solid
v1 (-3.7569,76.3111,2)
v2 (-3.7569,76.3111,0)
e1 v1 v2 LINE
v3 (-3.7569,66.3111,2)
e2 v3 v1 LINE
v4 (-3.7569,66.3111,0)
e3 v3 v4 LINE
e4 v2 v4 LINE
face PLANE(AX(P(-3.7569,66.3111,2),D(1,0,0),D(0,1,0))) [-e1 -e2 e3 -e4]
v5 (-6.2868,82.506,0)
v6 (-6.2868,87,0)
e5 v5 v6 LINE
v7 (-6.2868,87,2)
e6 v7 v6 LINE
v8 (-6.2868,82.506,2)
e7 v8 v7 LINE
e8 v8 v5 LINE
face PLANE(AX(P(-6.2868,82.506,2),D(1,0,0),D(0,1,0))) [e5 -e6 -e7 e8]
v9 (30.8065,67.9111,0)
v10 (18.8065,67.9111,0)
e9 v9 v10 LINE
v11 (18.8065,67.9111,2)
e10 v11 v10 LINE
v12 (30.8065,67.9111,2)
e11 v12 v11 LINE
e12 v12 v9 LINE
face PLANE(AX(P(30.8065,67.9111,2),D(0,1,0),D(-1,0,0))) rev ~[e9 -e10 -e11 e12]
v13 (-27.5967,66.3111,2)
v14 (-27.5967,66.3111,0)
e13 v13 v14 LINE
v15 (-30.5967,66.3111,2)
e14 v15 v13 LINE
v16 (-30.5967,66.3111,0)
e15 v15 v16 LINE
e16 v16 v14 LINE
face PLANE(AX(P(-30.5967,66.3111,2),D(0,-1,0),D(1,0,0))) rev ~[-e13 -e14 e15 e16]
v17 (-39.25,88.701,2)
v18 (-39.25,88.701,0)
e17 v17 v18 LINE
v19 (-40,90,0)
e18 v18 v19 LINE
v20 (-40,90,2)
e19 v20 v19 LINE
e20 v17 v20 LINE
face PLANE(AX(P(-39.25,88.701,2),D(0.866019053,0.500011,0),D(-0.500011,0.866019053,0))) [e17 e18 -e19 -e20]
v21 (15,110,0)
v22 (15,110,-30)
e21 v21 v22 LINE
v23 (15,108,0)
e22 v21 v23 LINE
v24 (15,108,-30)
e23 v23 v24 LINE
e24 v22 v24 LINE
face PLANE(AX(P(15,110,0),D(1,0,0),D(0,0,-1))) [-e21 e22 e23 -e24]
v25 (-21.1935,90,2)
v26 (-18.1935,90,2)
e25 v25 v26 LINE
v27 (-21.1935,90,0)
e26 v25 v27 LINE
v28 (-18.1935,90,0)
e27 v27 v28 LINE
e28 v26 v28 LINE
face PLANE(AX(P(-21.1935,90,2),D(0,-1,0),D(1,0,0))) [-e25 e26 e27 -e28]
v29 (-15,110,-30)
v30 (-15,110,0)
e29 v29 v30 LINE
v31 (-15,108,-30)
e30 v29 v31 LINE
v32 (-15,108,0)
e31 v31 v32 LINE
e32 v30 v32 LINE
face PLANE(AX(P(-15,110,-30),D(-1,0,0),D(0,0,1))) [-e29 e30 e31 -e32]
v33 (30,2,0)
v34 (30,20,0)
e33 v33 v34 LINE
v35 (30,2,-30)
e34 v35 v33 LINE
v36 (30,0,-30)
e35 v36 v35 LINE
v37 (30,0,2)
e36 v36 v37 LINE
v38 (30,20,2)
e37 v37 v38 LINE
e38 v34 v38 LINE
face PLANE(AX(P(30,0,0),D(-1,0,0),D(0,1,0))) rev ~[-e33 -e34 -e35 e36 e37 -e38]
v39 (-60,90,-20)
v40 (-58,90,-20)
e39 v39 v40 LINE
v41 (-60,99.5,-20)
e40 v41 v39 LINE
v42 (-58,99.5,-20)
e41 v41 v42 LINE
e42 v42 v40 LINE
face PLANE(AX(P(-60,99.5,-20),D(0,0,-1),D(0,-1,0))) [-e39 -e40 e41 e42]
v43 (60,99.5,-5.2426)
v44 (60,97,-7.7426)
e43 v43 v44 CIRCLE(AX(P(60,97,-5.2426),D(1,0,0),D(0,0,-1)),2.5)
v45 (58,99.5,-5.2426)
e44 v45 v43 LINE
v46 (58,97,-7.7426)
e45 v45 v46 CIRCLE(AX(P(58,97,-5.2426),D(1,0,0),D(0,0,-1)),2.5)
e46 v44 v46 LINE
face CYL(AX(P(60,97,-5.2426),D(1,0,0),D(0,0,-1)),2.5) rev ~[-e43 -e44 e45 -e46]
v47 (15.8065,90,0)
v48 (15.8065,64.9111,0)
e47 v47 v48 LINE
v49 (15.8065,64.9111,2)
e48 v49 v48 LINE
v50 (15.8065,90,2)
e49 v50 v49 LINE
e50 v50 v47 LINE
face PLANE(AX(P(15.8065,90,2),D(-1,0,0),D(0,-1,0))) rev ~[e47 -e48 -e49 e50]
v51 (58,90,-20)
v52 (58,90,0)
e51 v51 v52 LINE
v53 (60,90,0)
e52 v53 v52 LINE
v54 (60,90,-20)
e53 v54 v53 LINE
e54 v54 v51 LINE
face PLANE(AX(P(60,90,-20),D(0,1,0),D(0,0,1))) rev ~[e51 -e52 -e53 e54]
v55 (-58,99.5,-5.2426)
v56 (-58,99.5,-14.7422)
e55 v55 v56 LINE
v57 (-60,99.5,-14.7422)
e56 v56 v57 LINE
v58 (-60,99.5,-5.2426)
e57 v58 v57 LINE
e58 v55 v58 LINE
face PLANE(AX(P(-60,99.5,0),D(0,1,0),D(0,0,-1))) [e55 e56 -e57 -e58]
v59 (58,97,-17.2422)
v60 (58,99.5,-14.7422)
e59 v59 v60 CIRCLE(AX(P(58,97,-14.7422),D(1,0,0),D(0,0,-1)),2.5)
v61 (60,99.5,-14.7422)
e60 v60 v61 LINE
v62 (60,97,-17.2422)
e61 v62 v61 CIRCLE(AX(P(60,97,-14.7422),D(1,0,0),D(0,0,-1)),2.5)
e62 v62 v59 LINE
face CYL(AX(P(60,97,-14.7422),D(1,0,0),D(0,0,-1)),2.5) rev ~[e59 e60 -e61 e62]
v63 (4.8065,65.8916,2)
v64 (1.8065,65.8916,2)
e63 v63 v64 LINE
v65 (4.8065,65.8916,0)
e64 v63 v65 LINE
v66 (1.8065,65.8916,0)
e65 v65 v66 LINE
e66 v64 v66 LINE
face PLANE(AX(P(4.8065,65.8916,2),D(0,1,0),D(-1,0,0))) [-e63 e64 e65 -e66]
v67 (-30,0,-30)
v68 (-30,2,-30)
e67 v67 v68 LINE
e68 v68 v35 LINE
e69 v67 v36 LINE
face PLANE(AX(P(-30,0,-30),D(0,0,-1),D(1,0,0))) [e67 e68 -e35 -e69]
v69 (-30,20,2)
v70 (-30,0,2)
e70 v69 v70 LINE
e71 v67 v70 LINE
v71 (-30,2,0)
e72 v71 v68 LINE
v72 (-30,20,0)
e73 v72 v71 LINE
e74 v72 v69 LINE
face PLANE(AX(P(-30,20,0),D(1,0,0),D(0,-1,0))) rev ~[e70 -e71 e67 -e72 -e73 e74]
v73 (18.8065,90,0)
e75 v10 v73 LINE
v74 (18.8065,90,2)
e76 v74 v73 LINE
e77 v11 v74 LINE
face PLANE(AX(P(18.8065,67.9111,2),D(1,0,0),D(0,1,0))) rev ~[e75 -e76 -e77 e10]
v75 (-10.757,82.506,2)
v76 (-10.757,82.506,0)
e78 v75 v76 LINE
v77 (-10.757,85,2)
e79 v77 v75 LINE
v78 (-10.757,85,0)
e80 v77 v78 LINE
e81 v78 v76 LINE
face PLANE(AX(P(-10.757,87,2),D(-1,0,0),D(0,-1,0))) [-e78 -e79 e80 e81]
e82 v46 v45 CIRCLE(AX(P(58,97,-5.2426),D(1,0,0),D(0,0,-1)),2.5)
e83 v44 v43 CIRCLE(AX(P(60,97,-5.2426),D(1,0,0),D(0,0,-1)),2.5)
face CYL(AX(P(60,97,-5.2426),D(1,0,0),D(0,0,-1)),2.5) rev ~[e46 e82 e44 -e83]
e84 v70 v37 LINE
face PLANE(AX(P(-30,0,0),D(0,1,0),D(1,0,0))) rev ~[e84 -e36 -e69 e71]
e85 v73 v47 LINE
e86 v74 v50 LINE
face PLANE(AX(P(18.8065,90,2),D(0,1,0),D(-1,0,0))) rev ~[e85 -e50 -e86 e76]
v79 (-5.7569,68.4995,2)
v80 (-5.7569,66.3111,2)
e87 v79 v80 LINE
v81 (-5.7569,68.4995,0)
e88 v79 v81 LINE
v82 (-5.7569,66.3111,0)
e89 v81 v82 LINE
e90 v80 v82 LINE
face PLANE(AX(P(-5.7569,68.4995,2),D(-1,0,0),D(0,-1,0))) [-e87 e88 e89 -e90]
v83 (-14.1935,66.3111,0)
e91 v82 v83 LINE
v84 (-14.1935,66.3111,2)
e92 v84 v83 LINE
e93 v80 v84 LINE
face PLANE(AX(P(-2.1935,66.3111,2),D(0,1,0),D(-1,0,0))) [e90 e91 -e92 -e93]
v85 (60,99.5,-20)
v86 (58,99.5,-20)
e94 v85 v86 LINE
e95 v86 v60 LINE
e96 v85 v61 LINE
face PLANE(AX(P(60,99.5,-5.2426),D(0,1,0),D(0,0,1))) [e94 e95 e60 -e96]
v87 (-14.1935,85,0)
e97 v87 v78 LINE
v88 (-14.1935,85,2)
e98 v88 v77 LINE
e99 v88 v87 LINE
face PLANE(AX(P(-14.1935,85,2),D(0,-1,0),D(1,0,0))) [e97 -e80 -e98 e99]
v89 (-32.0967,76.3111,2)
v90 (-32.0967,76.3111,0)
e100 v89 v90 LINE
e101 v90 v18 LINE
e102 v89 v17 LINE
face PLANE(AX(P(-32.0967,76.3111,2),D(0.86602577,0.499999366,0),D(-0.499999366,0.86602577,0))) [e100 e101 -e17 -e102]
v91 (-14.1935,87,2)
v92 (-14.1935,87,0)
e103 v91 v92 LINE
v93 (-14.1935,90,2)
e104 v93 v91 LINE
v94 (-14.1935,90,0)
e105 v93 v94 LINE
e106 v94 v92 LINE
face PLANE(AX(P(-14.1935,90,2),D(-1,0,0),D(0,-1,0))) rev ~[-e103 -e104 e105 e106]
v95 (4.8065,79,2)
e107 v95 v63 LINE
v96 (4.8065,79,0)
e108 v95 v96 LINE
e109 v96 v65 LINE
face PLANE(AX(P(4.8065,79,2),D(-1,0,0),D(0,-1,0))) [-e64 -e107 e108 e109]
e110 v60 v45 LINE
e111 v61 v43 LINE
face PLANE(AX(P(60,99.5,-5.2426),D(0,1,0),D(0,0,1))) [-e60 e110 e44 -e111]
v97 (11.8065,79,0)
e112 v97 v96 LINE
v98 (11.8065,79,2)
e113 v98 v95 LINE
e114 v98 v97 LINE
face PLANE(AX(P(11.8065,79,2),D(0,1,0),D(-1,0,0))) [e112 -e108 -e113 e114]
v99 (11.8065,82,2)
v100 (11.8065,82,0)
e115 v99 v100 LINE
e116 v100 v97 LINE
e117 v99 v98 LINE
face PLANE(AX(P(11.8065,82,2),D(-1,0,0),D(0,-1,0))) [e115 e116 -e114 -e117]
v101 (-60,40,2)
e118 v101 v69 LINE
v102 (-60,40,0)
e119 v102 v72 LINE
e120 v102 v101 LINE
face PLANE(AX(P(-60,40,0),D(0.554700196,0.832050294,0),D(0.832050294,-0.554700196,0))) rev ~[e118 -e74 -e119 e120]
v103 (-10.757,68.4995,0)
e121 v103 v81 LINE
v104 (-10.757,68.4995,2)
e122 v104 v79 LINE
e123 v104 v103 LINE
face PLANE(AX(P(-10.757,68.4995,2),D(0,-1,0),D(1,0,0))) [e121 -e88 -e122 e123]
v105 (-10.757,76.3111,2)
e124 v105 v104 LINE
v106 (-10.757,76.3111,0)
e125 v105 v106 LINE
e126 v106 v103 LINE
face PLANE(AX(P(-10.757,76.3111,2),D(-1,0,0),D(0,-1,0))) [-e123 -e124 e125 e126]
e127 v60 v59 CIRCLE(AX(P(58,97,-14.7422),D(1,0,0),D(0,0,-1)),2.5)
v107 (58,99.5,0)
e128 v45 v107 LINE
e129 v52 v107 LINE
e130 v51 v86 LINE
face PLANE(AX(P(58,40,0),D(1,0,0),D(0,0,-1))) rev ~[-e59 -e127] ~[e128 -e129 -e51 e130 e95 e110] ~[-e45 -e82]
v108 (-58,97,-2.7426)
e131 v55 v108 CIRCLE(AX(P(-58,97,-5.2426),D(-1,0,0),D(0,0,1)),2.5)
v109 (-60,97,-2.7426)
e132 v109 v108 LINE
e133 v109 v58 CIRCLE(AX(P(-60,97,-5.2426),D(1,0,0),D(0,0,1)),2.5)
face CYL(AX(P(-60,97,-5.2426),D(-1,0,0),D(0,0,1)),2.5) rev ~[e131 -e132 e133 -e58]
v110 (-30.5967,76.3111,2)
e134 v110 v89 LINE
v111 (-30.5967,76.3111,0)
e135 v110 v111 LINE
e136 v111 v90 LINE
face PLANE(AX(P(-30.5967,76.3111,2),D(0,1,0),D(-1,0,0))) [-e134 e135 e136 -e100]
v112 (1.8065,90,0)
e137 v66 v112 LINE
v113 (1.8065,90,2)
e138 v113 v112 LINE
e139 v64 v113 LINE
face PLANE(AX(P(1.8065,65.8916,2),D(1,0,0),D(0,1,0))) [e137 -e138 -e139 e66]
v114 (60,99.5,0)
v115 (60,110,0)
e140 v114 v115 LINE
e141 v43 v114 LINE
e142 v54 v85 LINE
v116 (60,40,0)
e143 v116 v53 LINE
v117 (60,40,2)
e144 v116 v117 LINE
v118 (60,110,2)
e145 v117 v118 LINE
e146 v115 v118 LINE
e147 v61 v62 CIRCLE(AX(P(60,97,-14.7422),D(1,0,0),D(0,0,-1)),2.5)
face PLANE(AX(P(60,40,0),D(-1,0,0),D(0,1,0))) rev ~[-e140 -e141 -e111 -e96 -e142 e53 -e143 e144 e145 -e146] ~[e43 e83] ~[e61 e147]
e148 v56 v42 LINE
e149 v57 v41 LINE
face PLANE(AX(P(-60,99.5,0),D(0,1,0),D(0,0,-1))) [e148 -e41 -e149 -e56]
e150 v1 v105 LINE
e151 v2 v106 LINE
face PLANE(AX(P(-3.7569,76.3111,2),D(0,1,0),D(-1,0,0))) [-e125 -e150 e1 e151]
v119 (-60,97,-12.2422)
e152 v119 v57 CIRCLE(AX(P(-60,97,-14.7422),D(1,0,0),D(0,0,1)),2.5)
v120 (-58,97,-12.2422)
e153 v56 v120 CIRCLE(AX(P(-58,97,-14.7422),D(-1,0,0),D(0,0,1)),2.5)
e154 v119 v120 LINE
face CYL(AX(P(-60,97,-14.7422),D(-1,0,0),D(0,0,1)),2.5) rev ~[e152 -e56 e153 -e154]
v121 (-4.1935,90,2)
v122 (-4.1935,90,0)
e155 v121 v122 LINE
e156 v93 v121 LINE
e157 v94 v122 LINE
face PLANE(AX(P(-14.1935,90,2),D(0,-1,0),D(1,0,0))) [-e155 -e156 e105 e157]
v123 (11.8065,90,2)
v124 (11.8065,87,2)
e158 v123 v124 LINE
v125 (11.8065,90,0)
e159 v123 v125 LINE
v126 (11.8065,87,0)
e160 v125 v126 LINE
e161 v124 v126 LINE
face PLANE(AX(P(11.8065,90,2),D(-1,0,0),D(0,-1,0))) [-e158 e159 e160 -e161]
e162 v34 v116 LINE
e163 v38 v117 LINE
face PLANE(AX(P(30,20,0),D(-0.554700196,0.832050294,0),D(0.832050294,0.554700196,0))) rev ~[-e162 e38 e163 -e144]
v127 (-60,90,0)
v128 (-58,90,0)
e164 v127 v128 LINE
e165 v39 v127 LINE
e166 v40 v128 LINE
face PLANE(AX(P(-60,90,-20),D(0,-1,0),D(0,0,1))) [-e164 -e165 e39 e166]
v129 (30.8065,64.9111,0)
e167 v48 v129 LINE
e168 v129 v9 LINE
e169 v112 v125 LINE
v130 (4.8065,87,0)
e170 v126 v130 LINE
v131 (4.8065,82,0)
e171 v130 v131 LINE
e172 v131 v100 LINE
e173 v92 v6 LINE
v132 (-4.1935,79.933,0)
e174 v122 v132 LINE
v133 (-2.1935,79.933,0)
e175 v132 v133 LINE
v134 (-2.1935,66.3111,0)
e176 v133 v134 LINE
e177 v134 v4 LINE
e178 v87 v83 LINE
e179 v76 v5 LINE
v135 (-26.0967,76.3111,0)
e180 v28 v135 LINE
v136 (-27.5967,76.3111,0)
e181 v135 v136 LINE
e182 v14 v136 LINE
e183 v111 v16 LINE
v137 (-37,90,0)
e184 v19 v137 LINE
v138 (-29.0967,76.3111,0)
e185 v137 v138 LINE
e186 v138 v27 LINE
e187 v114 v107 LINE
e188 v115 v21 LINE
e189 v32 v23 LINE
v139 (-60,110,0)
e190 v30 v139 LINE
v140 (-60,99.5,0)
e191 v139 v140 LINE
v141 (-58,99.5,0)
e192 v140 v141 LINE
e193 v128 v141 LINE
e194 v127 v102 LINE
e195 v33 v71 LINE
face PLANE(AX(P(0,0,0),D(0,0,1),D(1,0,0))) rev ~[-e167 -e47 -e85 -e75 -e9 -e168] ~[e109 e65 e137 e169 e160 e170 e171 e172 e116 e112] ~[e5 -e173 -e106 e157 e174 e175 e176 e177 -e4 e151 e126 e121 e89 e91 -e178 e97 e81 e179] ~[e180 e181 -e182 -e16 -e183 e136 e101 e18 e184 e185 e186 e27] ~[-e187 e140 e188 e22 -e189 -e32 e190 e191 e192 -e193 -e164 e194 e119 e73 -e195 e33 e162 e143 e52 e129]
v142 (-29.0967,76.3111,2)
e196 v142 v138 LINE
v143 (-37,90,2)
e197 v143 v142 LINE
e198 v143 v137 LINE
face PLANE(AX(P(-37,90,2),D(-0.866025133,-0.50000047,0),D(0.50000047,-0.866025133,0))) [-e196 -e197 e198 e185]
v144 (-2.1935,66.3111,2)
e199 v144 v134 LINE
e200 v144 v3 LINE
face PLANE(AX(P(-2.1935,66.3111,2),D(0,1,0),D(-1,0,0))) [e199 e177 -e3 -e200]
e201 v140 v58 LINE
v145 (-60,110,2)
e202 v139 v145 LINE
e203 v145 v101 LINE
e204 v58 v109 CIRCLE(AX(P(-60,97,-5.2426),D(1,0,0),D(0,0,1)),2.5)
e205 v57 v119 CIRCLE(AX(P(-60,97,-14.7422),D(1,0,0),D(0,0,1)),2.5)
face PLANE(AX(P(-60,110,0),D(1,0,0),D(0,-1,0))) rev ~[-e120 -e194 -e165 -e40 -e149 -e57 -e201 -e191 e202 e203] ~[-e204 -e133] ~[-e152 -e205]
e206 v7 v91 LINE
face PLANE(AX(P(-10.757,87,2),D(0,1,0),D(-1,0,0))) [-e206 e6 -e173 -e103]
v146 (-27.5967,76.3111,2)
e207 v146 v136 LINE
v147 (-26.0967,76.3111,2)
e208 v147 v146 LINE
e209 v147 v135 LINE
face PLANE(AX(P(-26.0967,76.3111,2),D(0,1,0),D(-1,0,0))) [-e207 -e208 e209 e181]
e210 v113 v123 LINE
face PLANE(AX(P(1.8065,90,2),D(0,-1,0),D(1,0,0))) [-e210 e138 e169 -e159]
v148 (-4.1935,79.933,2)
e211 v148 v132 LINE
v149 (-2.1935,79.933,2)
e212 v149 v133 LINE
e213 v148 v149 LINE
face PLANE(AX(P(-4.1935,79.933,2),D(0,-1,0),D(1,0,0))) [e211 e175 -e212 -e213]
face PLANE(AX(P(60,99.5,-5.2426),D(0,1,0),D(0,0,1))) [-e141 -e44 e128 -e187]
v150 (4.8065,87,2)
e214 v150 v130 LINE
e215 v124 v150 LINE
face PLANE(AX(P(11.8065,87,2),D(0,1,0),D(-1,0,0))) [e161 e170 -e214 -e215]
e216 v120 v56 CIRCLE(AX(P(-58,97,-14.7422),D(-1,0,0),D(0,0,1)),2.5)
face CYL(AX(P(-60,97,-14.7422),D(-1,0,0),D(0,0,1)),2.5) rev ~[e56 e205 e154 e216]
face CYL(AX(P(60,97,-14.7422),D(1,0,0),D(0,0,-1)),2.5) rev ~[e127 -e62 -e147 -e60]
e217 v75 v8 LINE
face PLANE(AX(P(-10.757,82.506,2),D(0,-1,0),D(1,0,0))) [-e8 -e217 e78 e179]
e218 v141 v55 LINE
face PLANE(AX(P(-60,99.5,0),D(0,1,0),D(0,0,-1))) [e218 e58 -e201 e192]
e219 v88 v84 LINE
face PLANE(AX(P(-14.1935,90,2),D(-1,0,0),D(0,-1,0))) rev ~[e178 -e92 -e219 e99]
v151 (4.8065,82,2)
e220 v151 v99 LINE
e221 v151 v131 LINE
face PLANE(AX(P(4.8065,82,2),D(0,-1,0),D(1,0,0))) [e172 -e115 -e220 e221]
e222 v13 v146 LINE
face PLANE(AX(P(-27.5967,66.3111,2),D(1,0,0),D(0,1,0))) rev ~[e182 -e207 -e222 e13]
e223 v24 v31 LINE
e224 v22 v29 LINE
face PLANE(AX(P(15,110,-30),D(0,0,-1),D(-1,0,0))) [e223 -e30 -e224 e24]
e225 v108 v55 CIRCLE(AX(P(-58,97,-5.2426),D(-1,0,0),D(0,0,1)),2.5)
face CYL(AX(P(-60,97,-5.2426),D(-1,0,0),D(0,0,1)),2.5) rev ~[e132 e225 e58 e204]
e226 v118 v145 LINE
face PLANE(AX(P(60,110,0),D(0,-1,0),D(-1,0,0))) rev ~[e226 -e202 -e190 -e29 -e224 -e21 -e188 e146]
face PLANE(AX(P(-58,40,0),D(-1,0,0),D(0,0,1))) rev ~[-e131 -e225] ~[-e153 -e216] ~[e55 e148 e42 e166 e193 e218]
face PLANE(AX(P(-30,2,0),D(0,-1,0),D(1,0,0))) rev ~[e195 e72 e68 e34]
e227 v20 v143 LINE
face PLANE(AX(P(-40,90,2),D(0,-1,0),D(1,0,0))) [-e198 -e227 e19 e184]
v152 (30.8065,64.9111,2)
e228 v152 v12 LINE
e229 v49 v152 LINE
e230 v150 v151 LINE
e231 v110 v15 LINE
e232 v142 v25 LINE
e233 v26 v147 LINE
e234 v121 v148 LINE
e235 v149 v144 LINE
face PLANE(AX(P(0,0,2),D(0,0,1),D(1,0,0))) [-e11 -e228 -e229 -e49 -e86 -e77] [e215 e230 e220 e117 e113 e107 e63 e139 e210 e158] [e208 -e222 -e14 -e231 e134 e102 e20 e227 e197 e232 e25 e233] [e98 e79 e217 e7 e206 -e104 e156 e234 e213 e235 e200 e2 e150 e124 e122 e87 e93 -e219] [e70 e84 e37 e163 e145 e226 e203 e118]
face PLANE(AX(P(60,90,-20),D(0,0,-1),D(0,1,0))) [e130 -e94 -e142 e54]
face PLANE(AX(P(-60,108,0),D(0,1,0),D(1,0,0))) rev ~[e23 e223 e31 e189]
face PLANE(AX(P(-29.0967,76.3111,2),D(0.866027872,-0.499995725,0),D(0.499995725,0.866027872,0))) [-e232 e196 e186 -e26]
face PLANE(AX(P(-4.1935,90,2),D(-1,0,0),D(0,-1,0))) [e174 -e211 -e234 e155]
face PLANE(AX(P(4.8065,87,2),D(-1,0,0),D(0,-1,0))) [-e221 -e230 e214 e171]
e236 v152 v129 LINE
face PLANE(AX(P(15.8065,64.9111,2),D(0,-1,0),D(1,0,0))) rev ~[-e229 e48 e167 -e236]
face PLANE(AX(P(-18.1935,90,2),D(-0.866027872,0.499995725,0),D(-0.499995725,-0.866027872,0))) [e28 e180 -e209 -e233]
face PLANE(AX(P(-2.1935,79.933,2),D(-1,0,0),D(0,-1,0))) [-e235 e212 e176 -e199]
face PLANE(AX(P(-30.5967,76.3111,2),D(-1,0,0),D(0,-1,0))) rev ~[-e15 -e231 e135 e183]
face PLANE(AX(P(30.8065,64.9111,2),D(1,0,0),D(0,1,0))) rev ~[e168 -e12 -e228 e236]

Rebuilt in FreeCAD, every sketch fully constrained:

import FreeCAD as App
import Part
import Sketcher
Q = App.Units.Quantity

doc = App.newDocument("Part")
body = doc.addObject("PartDesign::Body", "Body")
body.AllowCompound = True

# Sketch on XY plane
sketch1 = body.newObject("Sketcher::SketchObject", "Sketch")
sketch1.AttachmentSupport = (doc.getObject("XY_Plane"), [""])
sketch1.MapMode = "FlatFace"
sketch1.addGeometry(Part.LineSegment(App.Vector(-30, 20, 0), App.Vector(-30, 0, 0)), False)
sketch1.addGeometry(Part.LineSegment(App.Vector(-30, 0, 0), App.Vector(30, 0, 0)), False)
sketch1.addGeometry(Part.LineSegment(App.Vector(30, 0, 0), App.Vector(30, 20, 0)), False)
sketch1.addGeometry(Part.LineSegment(App.Vector(30, 20, 0), App.Vector(60, 40, 0)), False)
sketch1.addGeometry(Part.LineSegment(App.Vector(60, 40, 0), App.Vector(60, 110, 0)), False)
sketch1.addGeometry(Part.LineSegment(App.Vector(60, 110, 0), App.Vector(-60, 110, 0)), False)
sketch1.addGeometry(Part.LineSegment(App.Vector(-60, 110, 0), App.Vector(-60, 40, 0)), False)
sketch1.addGeometry(Part.LineSegment(App.Vector(-60, 40, 0), App.Vector(-30, 20, 0)), False)
sketch1.addConstraint(Sketcher.Constraint("Coincident", 0, 2, 1, 1))
sketch1.addConstraint(Sketcher.Constraint("Coincident", 1, 2, 2, 1))
sketch1.addConstraint(Sketcher.Constraint("Coincident", 2, 2, 3, 1))
sketch1.addConstraint(Sketcher.Constraint("Coincident", 3, 2, 4, 1))
sketch1.addConstraint(Sketcher.Constraint("Coincident", 4, 2, 5, 1))
sketch1.addConstraint(Sketcher.Constraint("Coincident", 5, 2, 6, 1))
sketch1.addConstraint(Sketcher.Constraint("Coincident", 6, 2, 7, 1))
sketch1.addConstraint(Sketcher.Constraint("Coincident", 7, 2, 0, 1))
sketch1.addConstraint(Sketcher.Constraint("Vertical", 0))
sketch1.addConstraint(Sketcher.Constraint("Horizontal", 1))
sketch1.addConstraint(Sketcher.Constraint("Vertical", 2))
sketch1.addConstraint(Sketcher.Constraint("Vertical", 4))
sketch1.addConstraint(Sketcher.Constraint("Horizontal", 5))
sketch1.addConstraint(Sketcher.Constraint("Vertical", 6))
sketch1.addConstraint(Sketcher.Constraint("Symmetric", 0, 2, 1, 2, -1, 1))
sketch1.addConstraint(Sketcher.Constraint("Symmetric", 3, 2, 6, 2, -2))
sketch1.addConstraint(Sketcher.Constraint("Horizontal", 2, 2, 7, 2))
sketch1.addConstraint(Sketcher.Constraint("DistanceX", 1, 1, 1, 2, 60.0))
sketch1.addConstraint(Sketcher.Constraint("DistanceX", 5, 2, 5, 1, 120.0))
sketch1.addConstraint(Sketcher.Constraint("DistanceY", 0, 2, 0, 1, 20.0))
sketch1.addConstraint(Sketcher.Constraint("DistanceY", 4, 1, 4, 2, 70.0))
sketch1.addConstraint(Sketcher.Constraint("DistanceY", 2, 2, 3, 2, 20.0))
pad1 = body.newObject("PartDesign::Pad", "Pad")
pad1.Profile = sketch1
pad1.Length = 2

# Sketch on XZ plane
sketch2 = body.newObject("Sketcher::SketchObject", "Sketch001")
sketch2.AttachmentSupport = (doc.getObject("XZ_Plane"), [""])
sketch2.MapMode = "FlatFace"
sketch2.addGeometry(Part.LineSegment(App.Vector(30, -30, 0), App.Vector(30, 0, 0)), False)
sketch2.addGeometry(Part.LineSegment(App.Vector(30, 0, 0), App.Vector(-30, 0, 0)), False)
sketch2.addGeometry(Part.LineSegment(App.Vector(-30, 0, 0), App.Vector(-30, -30, 0)), False)
sketch2.addGeometry(Part.LineSegment(App.Vector(-30, -30, 0), App.Vector(30, -30, 0)), False)
sketch2.addConstraint(Sketcher.Constraint("Coincident", 0, 2, 1, 1))
sketch2.addConstraint(Sketcher.Constraint("Coincident", 1, 2, 2, 1))
sketch2.addConstraint(Sketcher.Constraint("Coincident", 2, 2, 3, 1))
sketch2.addConstraint(Sketcher.Constraint("Coincident", 3, 2, 0, 1))
sketch2.addConstraint(Sketcher.Constraint("Vertical", 0))
sketch2.addConstraint(Sketcher.Constraint("Horizontal", 1))
sketch2.addConstraint(Sketcher.Constraint("Vertical", 2))
sketch2.addConstraint(Sketcher.Constraint("Horizontal", 3))
sketch2.addConstraint(Sketcher.Constraint("Symmetric", 0, 2, 1, 2, -1, 1))
sketch2.addConstraint(Sketcher.Constraint("DistanceX", 1, 2, 1, 1, 60.0))
sketch2.addConstraint(Sketcher.Constraint("DistanceY", 0, 1, 0, 2, 30.0))
pad2 = body.newObject("PartDesign::Pad", "Pad001")
pad2.Profile = sketch2
pad2.Length = 2
pad2.Reversed = True

# Sketch on XY plane
sketch3 = body.newObject("Sketcher::SketchObject", "Sketch002")
sketch3.AttachmentSupport = (doc.getObject("XY_Plane"), [""])
sketch3.MapMode = "FlatFace"
sketch3.AttachmentOffset = App.Placement(App.Vector(0, 0, 2), App.Rotation())
sketch3.addGeometry(Part.LineSegment(App.Vector(-29.1, 76.3, 0), App.Vector(-37, 90, 0)), False)
sketch3.addGeometry(Part.LineSegment(App.Vector(-37, 90, 0), App.Vector(-40, 90, 0)), False)
sketch3.addGeometry(Part.LineSegment(App.Vector(-40, 90, 0), App.Vector(-39.2, 88.7, 0)), False)
sketch3.addGeometry(Part.LineSegment(App.Vector(-39.2, 88.7, 0), App.Vector(-32.1, 76.3, 0)), False)
sketch3.addGeometry(Part.LineSegment(App.Vector(-32.1, 76.3, 0), App.Vector(-30.6, 76.3, 0)), False)
sketch3.addGeometry(Part.LineSegment(App.Vector(-30.6, 76.3, 0), App.Vector(-30.6, 66.3, 0)), False)
sketch3.addGeometry(Part.LineSegment(App.Vector(-30.6, 66.3, 0), App.Vector(-27.6, 66.3, 0)), False)
sketch3.addGeometry(Part.LineSegment(App.Vector(-27.6, 66.3, 0), App.Vector(-27.6, 76.3, 0)), False)
sketch3.addGeometry(Part.LineSegment(App.Vector(-27.6, 76.3, 0), App.Vector(-26.1, 76.3, 0)), False)
sketch3.addGeometry(Part.LineSegment(App.Vector(-26.1, 76.3, 0), App.Vector(-18.2, 90, 0)), False)
sketch3.addGeometry(Part.LineSegment(App.Vector(-18.2, 90, 0), App.Vector(-21.2, 90, 0)), False)
sketch3.addGeometry(Part.LineSegment(App.Vector(-21.2, 90, 0), App.Vector(-29.1, 76.3, 0)), False)
sketch3.addGeometry(Part.LineSegment(App.Vector(-4.2, 90, 0), App.Vector(-14.2, 90, 0)), False)
sketch3.addGeometry(Part.LineSegment(App.Vector(-14.2, 90, 0), App.Vector(-14.2, 66.3, 0)), False)
sketch3.addGeometry(Part.LineSegment(App.Vector(-14.2, 66.3, 0), App.Vector(-2.2, 66.3, 0)), False)
sketch3.addGeometry(Part.LineSegment(App.Vector(-2.2, 66.3, 0), App.Vector(-2.2, 79.9, 0)), False)
sketch3.addGeometry(Part.LineSegment(App.Vector(-2.2, 79.9, 0), App.Vector(-4.2, 79.9, 0)), False)
sketch3.addGeometry(Part.LineSegment(App.Vector(-4.2, 79.9, 0), App.Vector(-4.2, 90, 0)), False)
sketch3.addGeometry(Part.LineSegment(App.Vector(-10.8, 68.5, 0), App.Vector(-10.8, 76.3, 0)), False)
sketch3.addGeometry(Part.LineSegment(App.Vector(-10.8, 76.3, 0), App.Vector(-3.8, 76.3, 0)), False)
sketch3.addGeometry(Part.LineSegment(App.Vector(-3.8, 76.3, 0), App.Vector(-3.8, 68.5, 0)), False)
sketch3.addGeometry(Part.LineSegment(App.Vector(-3.8, 68.5, 0), App.Vector(-10.8, 68.5, 0)), False)
sketch3.addGeometry(Part.LineSegment(App.Vector(-10.8, 82.5, 0), App.Vector(-10.8, 87, 0)), False)
sketch3.addGeometry(Part.LineSegment(App.Vector(-10.8, 87, 0), App.Vector(-6.3, 87, 0)), False)
sketch3.addGeometry(Part.LineSegment(App.Vector(-6.3, 87, 0), App.Vector(-6.3, 82.5, 0)), False)
sketch3.addGeometry(Part.LineSegment(App.Vector(-6.3, 82.5, 0), App.Vector(-10.8, 82.5, 0)), False)
sketch3.addGeometry(Part.LineSegment(App.Vector(1.8, 90, 0), App.Vector(1.8, 65.9, 0)), False)
sketch3.addGeometry(Part.LineSegment(App.Vector(1.8, 65.9, 0), App.Vector(4.8, 65.9, 0)), False)
sketch3.addGeometry(Part.LineSegment(App.Vector(4.8, 65.9, 0), App.Vector(4.8, 79, 0)), False)
sketch3.addGeometry(Part.LineSegment(App.Vector(4.8, 79, 0), App.Vector(11.8, 79, 0)), False)
sketch3.addGeometry(Part.LineSegment(App.Vector(11.8, 79, 0), App.Vector(11.8, 82, 0)), False)
sketch3.addGeometry(Part.LineSegment(App.Vector(11.8, 82, 0), App.Vector(4.8, 82, 0)), False)
sketch3.addGeometry(Part.LineSegment(App.Vector(4.8, 82, 0), App.Vector(4.8, 87, 0)), False)
sketch3.addGeometry(Part.LineSegment(App.Vector(4.8, 87, 0), App.Vector(11.8, 87, 0)), False)
sketch3.addGeometry(Part.LineSegment(App.Vector(11.8, 87, 0), App.Vector(11.8, 90, 0)), False)
sketch3.addGeometry(Part.LineSegment(App.Vector(11.8, 90, 0), App.Vector(1.8, 90, 0)), False)
sketch3.addGeometry(Part.LineSegment(App.Vector(18.8, 90, 0), App.Vector(15.8, 90, 0)), False)
sketch3.addGeometry(Part.LineSegment(App.Vector(15.8, 90, 0), App.Vector(15.8, 64.9, 0)), False)
sketch3.addGeometry(Part.LineSegment(App.Vector(15.8, 64.9, 0), App.Vector(30.8, 64.9, 0)), False)
sketch3.addGeometry(Part.LineSegment(App.Vector(30.8, 64.9, 0), App.Vector(30.8, 67.9, 0)), False)
sketch3.addGeometry(Part.LineSegment(App.Vector(30.8, 67.9, 0), App.Vector(18.8, 67.9, 0)), False)
sketch3.addGeometry(Part.LineSegment(App.Vector(18.8, 67.9, 0), App.Vector(18.8, 90, 0)), False)
sketch3.addConstraint(Sketcher.Constraint("Coincident", 0, 2, 1, 1))
sketch3.addConstraint(Sketcher.Constraint("Coincident", 1, 2, 2, 1))
sketch3.addConstraint(Sketcher.Constraint("Coincident", 2, 2, 3, 1))
sketch3.addConstraint(Sketcher.Constraint("Coincident", 3, 2, 4, 1))
sketch3.addConstraint(Sketcher.Constraint("Coincident", 4, 2, 5, 1))
sketch3.addConstraint(Sketcher.Constraint("Coincident", 5, 2, 6, 1))
sketch3.addConstraint(Sketcher.Constraint("Coincident", 6, 2, 7, 1))
sketch3.addConstraint(Sketcher.Constraint("Coincident", 7, 2, 8, 1))
sketch3.addConstraint(Sketcher.Constraint("Coincident", 8, 2, 9, 1))
sketch3.addConstraint(Sketcher.Constraint("Coincident", 9, 2, 10, 1))
sketch3.addConstraint(Sketcher.Constraint("Coincident", 10, 2, 11, 1))
sketch3.addConstraint(Sketcher.Constraint("Coincident", 11, 2, 0, 1))
sketch3.addConstraint(Sketcher.Constraint("Coincident", 12, 2, 13, 1))
sketch3.addConstraint(Sketcher.Constraint("Coincident", 13, 2, 14, 1))
sketch3.addConstraint(Sketcher.Constraint("Coincident", 14, 2, 15, 1))
sketch3.addConstraint(Sketcher.Constraint("Coincident", 15, 2, 16, 1))
sketch3.addConstraint(Sketcher.Constraint("Coincident", 16, 2, 17, 1))
sketch3.addConstraint(Sketcher.Constraint("Coincident", 17, 2, 12, 1))
sketch3.addConstraint(Sketcher.Constraint("Coincident", 18, 2, 19, 1))
sketch3.addConstraint(Sketcher.Constraint("Coincident", 19, 2, 20, 1))
sketch3.addConstraint(Sketcher.Constraint("Coincident", 20, 2, 21, 1))
sketch3.addConstraint(Sketcher.Constraint("Coincident", 21, 2, 18, 1))
sketch3.addConstraint(Sketcher.Constraint("Coincident", 22, 2, 23, 1))
sketch3.addConstraint(Sketcher.Constraint("Coincident", 23, 2, 24, 1))
sketch3.addConstraint(Sketcher.Constraint("Coincident", 24, 2, 25, 1))
sketch3.addConstraint(Sketcher.Constraint("Coincident", 25, 2, 22, 1))
sketch3.addConstraint(Sketcher.Constraint("Coincident", 26, 2, 27, 1))
sketch3.addConstraint(Sketcher.Constraint("Coincident", 27, 2, 28, 1))
sketch3.addConstraint(Sketcher.Constraint("Coincident", 28, 2, 29, 1))
sketch3.addConstraint(Sketcher.Constraint("Coincident", 29, 2, 30, 1))
sketch3.addConstraint(Sketcher.Constraint("Coincident", 30, 2, 31, 1))
sketch3.addConstraint(Sketcher.Constraint("Coincident", 31, 2, 32, 1))
sketch3.addConstraint(Sketcher.Constraint("Coincident", 32, 2, 33, 1))
sketch3.addConstraint(Sketcher.Constraint("Coincident", 33, 2, 34, 1))
sketch3.addConstraint(Sketcher.Constraint("Coincident", 34, 2, 35, 1))
sketch3.addConstraint(Sketcher.Constraint("Coincident", 35, 2, 26, 1))
sketch3.addConstraint(Sketcher.Constraint("Coincident", 36, 2, 37, 1))
sketch3.addConstraint(Sketcher.Constraint("Coincident", 37, 2, 38, 1))
sketch3.addConstraint(Sketcher.Constraint("Coincident", 38, 2, 39, 1))
sketch3.addConstraint(Sketcher.Constraint("Coincident", 39, 2, 40, 1))
sketch3.addConstraint(Sketcher.Constraint("Coincident", 40, 2, 41, 1))
sketch3.addConstraint(Sketcher.Constraint("Coincident", 41, 2, 36, 1))
sketch3.addConstraint(Sketcher.Constraint("Horizontal", 1))
sketch3.addConstraint(Sketcher.Constraint("Horizontal", 4))
sketch3.addConstraint(Sketcher.Constraint("Vertical", 5))
sketch3.addConstraint(Sketcher.Constraint("Horizontal", 6))
sketch3.addConstraint(Sketcher.Constraint("Vertical", 7))
sketch3.addConstraint(Sketcher.Constraint("Horizontal", 8))
sketch3.addConstraint(Sketcher.Constraint("Horizontal", 10))
sketch3.addConstraint(Sketcher.Constraint("Horizontal", 12))
sketch3.addConstraint(Sketcher.Constraint("Vertical", 13))
sketch3.addConstraint(Sketcher.Constraint("Horizontal", 14))
sketch3.addConstraint(Sketcher.Constraint("Vertical", 15))
sketch3.addConstraint(Sketcher.Constraint("Horizontal", 16))
sketch3.addConstraint(Sketcher.Constraint("Vertical", 17))
sketch3.addConstraint(Sketcher.Constraint("Vertical", 18))
sketch3.addConstraint(Sketcher.Constraint("Horizontal", 19))
sketch3.addConstraint(Sketcher.Constraint("Vertical", 20))
sketch3.addConstraint(Sketcher.Constraint("Horizontal", 21))
sketch3.addConstraint(Sketcher.Constraint("Vertical", 22))
sketch3.addConstraint(Sketcher.Constraint("Horizontal", 23))
sketch3.addConstraint(Sketcher.Constraint("Vertical", 24))
sketch3.addConstraint(Sketcher.Constraint("Horizontal", 25))
sketch3.addConstraint(Sketcher.Constraint("Vertical", 26))
sketch3.addConstraint(Sketcher.Constraint("Horizontal", 27))
sketch3.addConstraint(Sketcher.Constraint("Vertical", 28))
sketch3.addConstraint(Sketcher.Constraint("Horizontal", 29))
sketch3.addConstraint(Sketcher.Constraint("Vertical", 30))
sketch3.addConstraint(Sketcher.Constraint("Horizontal", 31))
sketch3.addConstraint(Sketcher.Constraint("Vertical", 32))
sketch3.addConstraint(Sketcher.Constraint("Horizontal", 33))
sketch3.addConstraint(Sketcher.Constraint("Vertical", 34))
sketch3.addConstraint(Sketcher.Constraint("Horizontal", 35))
sketch3.addConstraint(Sketcher.Constraint("Horizontal", 36))
sketch3.addConstraint(Sketcher.Constraint("Vertical", 37))
sketch3.addConstraint(Sketcher.Constraint("Horizontal", 38))
sketch3.addConstraint(Sketcher.Constraint("Vertical", 39))
sketch3.addConstraint(Sketcher.Constraint("Horizontal", 40))
sketch3.addConstraint(Sketcher.Constraint("Vertical", 41))
sketch3.addConstraint(Sketcher.Constraint("Parallel", 0, 2))
sketch3.addConstraint(Sketcher.Constraint("Parallel", 2, 3))
sketch3.addConstraint(Sketcher.Constraint("Parallel", 9, 11))
sketch3.addConstraint(Sketcher.Constraint("Horizontal", 4, 2, 7, 2))
sketch3.addConstraint(Sketcher.Constraint("Horizontal", 1, 2, 9, 2))
sketch3.addConstraint(Sketcher.Constraint("Horizontal", 8, 2, 11, 2))
sketch3.addConstraint(Sketcher.Constraint("Horizontal", 10, 2, 12, 2))
sketch3.addConstraint(Sketcher.Constraint("Horizontal", 6, 2, 13, 2))
sketch3.addConstraint(Sketcher.Constraint("Horizontal", 11, 2, 18, 2))
sketch3.addConstraint(Sketcher.Constraint("Horizontal", 23, 2, 32, 2))
sketch3.addConstraint(Sketcher.Constraint("Horizontal", 17, 2, 34, 2))
sketch3.addConstraint(Sketcher.Constraint("Horizontal", 35, 2, 36, 2))
sketch3.addConstraint(Sketcher.Constraint("Vertical", 21, 2, 22, 2))
sketch3.addConstraint(Sketcher.Constraint("Vertical", 28, 2, 31, 2))
sketch3.addConstraint(Sketcher.Constraint("Vertical", 30, 2, 33, 2))
sketch3.addConstraint(Sketcher.Constraint("Equal", 1, 6))
sketch3.addConstraint(Sketcher.Constraint("Equal", 4, 8))
sketch3.addConstraint(Sketcher.Constraint("Equal", 6, 10))
sketch3.addConstraint(Sketcher.Constraint("Equal", 10, 27))
sketch3.addConstraint(Sketcher.Constraint("Equal", 21, 29))
sketch3.addConstraint(Sketcher.Constraint("Equal", 12, 35))
sketch3.addConstraint(Sketcher.Constraint("Equal", 27, 36))
sketch3.addConstraint(Sketcher.Constraint("Equal", 14, 40))
sketch3.addConstraint(Sketcher.Constraint("Equal", 35, 5))
sketch3.addConstraint(Sketcher.Constraint("Equal", 36, 30))
sketch3.addConstraint(Sketcher.Constraint("Equal", 30, 34))
sketch3.addConstraint(Sketcher.Constraint("Equal", 34, 39))
sketch3.addConstraint(Sketcher.Constraint("Equal", 0, 9))
sketch3.addConstraint(Sketcher.Constraint("DistanceX", 1, 2, 1, 1, 3.0))
sketch3.addConstraint(Sketcher.Constraint("DistanceX", 12, 2, 12, 1, 10.0))
sketch3.addConstraint(Sketcher.Constraint("DistanceX", 14, 1, 14, 2, 12.0))
sketch3.addConstraint(Sketcher.Constraint("DistanceY", 32, 1, 32, 2, 5.0))
sketch3.addConstraint(Sketcher.Constraint("Angle", 3, Q("-60 deg")))
sketch3.addConstraint(Sketcher.Constraint("DistanceX", 9, 2, 12, 2, 4.0))
sketch3.addConstraint(Sketcher.Constraint("DistanceX", 14, 2, 26, 2, 4.0))
sketch3.addConstraint(Sketcher.Constraint("DistanceX", 34, 2, 36, 2, 4.0))
sketch3.addConstraint(Sketcher.Constraint("DistanceX", 0, 2, -1, 1, 37.0))
sketch3.addConstraint(Sketcher.Constraint("DistanceY", -1, 1, 0, 2, 90.0))
sketch3.addConstraint(Sketcher.Constraint("Distance", 2, 1.5))
sketch3.addConstraint(Sketcher.Constraint("DistanceY", 13, 2, 13, 1, 23.689))
sketch3.addConstraint(Sketcher.Constraint("DistanceY", 15, 1, 15, 2, 13.622))
sketch3.addConstraint(Sketcher.Constraint("DistanceY", 22, 1, 22, 2, 4.494))
sketch3.addConstraint(Sketcher.Constraint("DistanceY", 37, 2, 37, 1, 25.089))
sketch3.addConstraint(Sketcher.Constraint("DistanceX", 24, 2, 19, 2, 2.53))
sketch3.addConstraint(Sketcher.Constraint("DistanceY", 18, 1, 18, 2, 7.8116))
sketch3.addConstraint(Sketcher.Constraint("DistanceY", 26, 2, 26, 1, 24.1084))
sketch3.addConstraint(Sketcher.Constraint("DistanceX", 18, 2, -1, 1, 10.757))
pocket1 = body.newObject("PartDesign::Pocket", "Pocket")
pocket1.Profile = sketch3
pocket1.Length = 2

# Sketch on XY plane
sketch4 = body.newObject("Sketcher::SketchObject", "Sketch003")
sketch4.AttachmentSupport = (doc.getObject("XY_Plane"), [""])
sketch4.MapMode = "FlatFace"
sketch4.AttachmentOffset = App.Placement(App.Vector(0, 0, 2), App.Rotation())
sketch4.addGeometry(Part.LineSegment(App.Vector(-5.8, 68.5, 0), App.Vector(-5.8, 66.3, 0)), False)
sketch4.addGeometry(Part.LineSegment(App.Vector(-5.8, 66.3, 0), App.Vector(-3.8, 66.3, 0)), False)
sketch4.addGeometry(Part.LineSegment(App.Vector(-3.8, 66.3, 0), App.Vector(-3.8, 68.5, 0)), False)
sketch4.addGeometry(Part.LineSegment(App.Vector(-3.8, 68.5, 0), App.Vector(-5.8, 68.5, 0)), False)
sketch4.addGeometry(Part.LineSegment(App.Vector(-14.2, 87, 0), App.Vector(-14.2, 85, 0)), False)
sketch4.addGeometry(Part.LineSegment(App.Vector(-14.2, 85, 0), App.Vector(-10.8, 85, 0)), False)
sketch4.addGeometry(Part.LineSegment(App.Vector(-10.8, 85, 0), App.Vector(-10.8, 87, 0)), False)
sketch4.addGeometry(Part.LineSegment(App.Vector(-10.8, 87, 0), App.Vector(-14.2, 87, 0)), False)
sketch4.addConstraint(Sketcher.Constraint("Coincident", 0, 2, 1, 1))
sketch4.addConstraint(Sketcher.Constraint("Coincident", 1, 2, 2, 1))
sketch4.addConstraint(Sketcher.Constraint("Coincident", 2, 2, 3, 1))
sketch4.addConstraint(Sketcher.Constraint("Coincident", 3, 2, 0, 1))
sketch4.addConstraint(Sketcher.Constraint("Coincident", 4, 2, 5, 1))
sketch4.addConstraint(Sketcher.Constraint("Coincident", 5, 2, 6, 1))
sketch4.addConstraint(Sketcher.Constraint("Coincident", 6, 2, 7, 1))
sketch4.addConstraint(Sketcher.Constraint("Coincident", 7, 2, 4, 1))
sketch4.addConstraint(Sketcher.Constraint("Vertical", 0))
sketch4.addConstraint(Sketcher.Constraint("Horizontal", 1))
sketch4.addConstraint(Sketcher.Constraint("Vertical", 2))
sketch4.addConstraint(Sketcher.Constraint("Horizontal", 3))
sketch4.addConstraint(Sketcher.Constraint("Vertical", 4))
sketch4.addConstraint(Sketcher.Constraint("Horizontal", 5))
sketch4.addConstraint(Sketcher.Constraint("Vertical", 6))
sketch4.addConstraint(Sketcher.Constraint("Horizontal", 7))
sketch4.addConstraint(Sketcher.Constraint("Equal", 3, 4))
sketch4.addConstraint(Sketcher.Constraint("DistanceX", 1, 1, 1, 2, 2.0))
sketch4.addConstraint(Sketcher.Constraint("DistanceY", -1, 1, 4, 2, 85.0))
sketch4.addConstraint(Sketcher.Constraint("DistanceX", 5, 2, 3, 2, 5.0))
sketch4.addConstraint(Sketcher.Constraint("DistanceX", 5, 1, 5, 2, 3.4365))
sketch4.addConstraint(Sketcher.Constraint("DistanceY", 0, 2, 0, 1, 2.1884))
sketch4.addConstraint(Sketcher.Constraint("DistanceX", 0, 2, -1, 1, 5.757))
sketch4.addConstraint(Sketcher.Constraint("DistanceY", -1, 1, 0, 2, 66.311))
pad3 = body.newObject("PartDesign::Pad", "Pad002")
pad3.Profile = sketch4
pad3.Length = 2
pad3.Reversed = True

# Sketch on XZ plane
sketch5 = body.newObject("Sketcher::SketchObject", "Sketch004")
sketch5.AttachmentSupport = (doc.getObject("XZ_Plane"), [""])
sketch5.MapMode = "FlatFace"
sketch5.AttachmentOffset = App.Placement(App.Vector(0, 0, -110), App.Rotation())
sketch5.addGeometry(Part.LineSegment(App.Vector(-15, -30, 0), App.Vector(-15, 0, 0)), False)
sketch5.addGeometry(Part.LineSegment(App.Vector(-15, 0, 0), App.Vector(15, 0, 0)), False)
sketch5.addGeometry(Part.LineSegment(App.Vector(15, 0, 0), App.Vector(15, -30, 0)), False)
sketch5.addGeometry(Part.LineSegment(App.Vector(15, -30, 0), App.Vector(-15, -30, 0)), False)
sketch5.addConstraint(Sketcher.Constraint("Coincident", 0, 2, 1, 1))
sketch5.addConstraint(Sketcher.Constraint("Coincident", 1, 2, 2, 1))
sketch5.addConstraint(Sketcher.Constraint("Coincident", 2, 2, 3, 1))
sketch5.addConstraint(Sketcher.Constraint("Coincident", 3, 2, 0, 1))
sketch5.addConstraint(Sketcher.Constraint("Vertical", 0))
sketch5.addConstraint(Sketcher.Constraint("Horizontal", 1))
sketch5.addConstraint(Sketcher.Constraint("Vertical", 2))
sketch5.addConstraint(Sketcher.Constraint("Horizontal", 3))
sketch5.addConstraint(Sketcher.Constraint("Symmetric", 0, 2, 1, 2, -1, 1))
sketch5.addConstraint(Sketcher.Constraint("Equal", 3, 0))
sketch5.addConstraint(Sketcher.Constraint("DistanceX", 1, 1, 1, 2, 30.0))
pad4 = body.newObject("PartDesign::Pad", "Pad003")
pad4.Profile = sketch5
pad4.Length = 2

# Sketch on YZ plane
sketch6 = body.newObject("Sketcher::SketchObject", "Sketch005")
sketch6.AttachmentSupport = (doc.getObject("YZ_Plane"), [""])
sketch6.MapMode = "FlatFace"
sketch6.AttachmentOffset = App.Placement(App.Vector(0, 0, -60), App.Rotation())
sketch6.addGeometry(Part.LineSegment(App.Vector(90, -20, 0), App.Vector(90, 0, 0)), False)
sketch6.addGeometry(Part.LineSegment(App.Vector(90, 0, 0), App.Vector(100, 0, 0)), False)
sketch6.addGeometry(Part.LineSegment(App.Vector(100, 0, 0), App.Vector(100, -20, 0)), False)
sketch6.addGeometry(Part.LineSegment(App.Vector(100, -20, 0), App.Vector(90, -20, 0)), False)
sketch6.addConstraint(Sketcher.Constraint("Coincident", 0, 2, 1, 1))
sketch6.addConstraint(Sketcher.Constraint("Coincident", 1, 2, 2, 1))
sketch6.addConstraint(Sketcher.Constraint("Coincident", 2, 2, 3, 1))
sketch6.addConstraint(Sketcher.Constraint("Coincident", 3, 2, 0, 1))
sketch6.addConstraint(Sketcher.Constraint("Vertical", 0))
sketch6.addConstraint(Sketcher.Constraint("Horizontal", 1))
sketch6.addConstraint(Sketcher.Constraint("Vertical", 2))
sketch6.addConstraint(Sketcher.Constraint("Horizontal", 3))
sketch6.addConstraint(Sketcher.Constraint("PointOnObject", 0, 2, -1))
sketch6.addConstraint(Sketcher.Constraint("DistanceY", 0, 1, 0, 2, 20.0))
sketch6.addConstraint(Sketcher.Constraint("DistanceX", 1, 1, 1, 2, 9.5))
sketch6.addConstraint(Sketcher.Constraint("DistanceX", -1, 1, 0, 2, 90.0))
pad5 = body.newObject("PartDesign::Pad", "Pad004")
pad5.Profile = sketch6
pad5.Length = 2

# Sketch on YZ plane
sketch7 = body.newObject("Sketcher::SketchObject", "Sketch006")
sketch7.AttachmentSupport = (doc.getObject("YZ_Plane"), [""])
sketch7.MapMode = "FlatFace"
sketch7.AttachmentOffset = App.Placement(App.Vector(0, 0, -60), App.Rotation())
sketch7.addGeometry(Part.Circle(App.Vector(97, -14.7, 0), App.Vector(0, 0, 1), 2.5), False)
sketch7.addGeometry(Part.Circle(App.Vector(97, -5.2, 0), App.Vector(0, 0, 1), 2.5), False)
sketch7.addConstraint(Sketcher.Constraint("Equal", 0, 1))
sketch7.addConstraint(Sketcher.Constraint("Vertical", 0, 3, 1, 3))
sketch7.addConstraint(Sketcher.Constraint("Diameter", 0, 5.0))
sketch7.addConstraint(Sketcher.Constraint("DistanceX", -1, 1, 0, 3, 97.0))
sketch7.addConstraint(Sketcher.Constraint("DistanceY", 0, 3, 1, 3, 9.4996))
sketch7.addConstraint(Sketcher.Constraint("DistanceY", 0, 3, -1, 1, 14.7422))
pocket2 = body.newObject("PartDesign::Pocket", "Pocket001")
pocket2.Profile = sketch7
pocket2.Length = 2
pocket2.Reversed = True

# Sketch on YZ plane
sketch8 = body.newObject("Sketcher::SketchObject", "Sketch007")
sketch8.AttachmentSupport = (doc.getObject("YZ_Plane"), [""])
sketch8.MapMode = "FlatFace"
sketch8.AttachmentOffset = App.Placement(App.Vector(0, 0, 60), App.Rotation())
sketch8.addGeometry(Part.LineSegment(App.Vector(100, -20, 0), App.Vector(100, 0, 0)), False)
sketch8.addGeometry(Part.LineSegment(App.Vector(100, 0, 0), App.Vector(90, 0, 0)), False)
sketch8.addGeometry(Part.LineSegment(App.Vector(90, 0, 0), App.Vector(90, -20, 0)), False)
sketch8.addGeometry(Part.LineSegment(App.Vector(90, -20, 0), App.Vector(100, -20, 0)), False)
sketch8.addConstraint(Sketcher.Constraint("Coincident", 0, 2, 1, 1))
sketch8.addConstraint(Sketcher.Constraint("Coincident", 1, 2, 2, 1))
sketch8.addConstraint(Sketcher.Constraint("Coincident", 2, 2, 3, 1))
sketch8.addConstraint(Sketcher.Constraint("Coincident", 3, 2, 0, 1))
sketch8.addConstraint(Sketcher.Constraint("Vertical", 0))
sketch8.addConstraint(Sketcher.Constraint("Horizontal", 1))
sketch8.addConstraint(Sketcher.Constraint("Vertical", 2))
sketch8.addConstraint(Sketcher.Constraint("Horizontal", 3))
sketch8.addConstraint(Sketcher.Constraint("PointOnObject", 0, 2, -1))
sketch8.addConstraint(Sketcher.Constraint("DistanceY", 0, 1, 0, 2, 20.0))
sketch8.addConstraint(Sketcher.Constraint("DistanceX", 1, 2, 1, 1, 9.5))
sketch8.addConstraint(Sketcher.Constraint("DistanceX", -1, 1, 1, 2, 90.0))
pad6 = body.newObject("PartDesign::Pad", "Pad005")
pad6.Profile = sketch8
pad6.Length = 2
pad6.Reversed = True

# Sketch on YZ plane
sketch9 = body.newObject("Sketcher::SketchObject", "Sketch008")
sketch9.AttachmentSupport = (doc.getObject("YZ_Plane"), [""])
sketch9.MapMode = "FlatFace"
sketch9.AttachmentOffset = App.Placement(App.Vector(0, 0, 60), App.Rotation())
sketch9.addGeometry(Part.Circle(App.Vector(97, -5.2, 0), App.Vector(0, 0, 1), 2.5), False)
sketch9.addGeometry(Part.Circle(App.Vector(97, -14.7, 0), App.Vector(0, 0, 1), 2.5), False)
sketch9.addConstraint(Sketcher.Constraint("Equal", 0, 1))
sketch9.addConstraint(Sketcher.Constraint("Vertical", 0, 3, 1, 3))
sketch9.addConstraint(Sketcher.Constraint("Diameter", 0, 5.0))
sketch9.addConstraint(Sketcher.Constraint("DistanceX", -1, 1, 0, 3, 97.0))
sketch9.addConstraint(Sketcher.Constraint("DistanceY", 0, 3, -1, 1, 5.2426))
sketch9.addConstraint(Sketcher.Constraint("DistanceY", 1, 3, -1, 1, 14.7422))
pocket3 = body.newObject("PartDesign::Pocket", "Pocket002")
pocket3.Profile = sketch9
pocket3.Length = 2

doc.recompute()
